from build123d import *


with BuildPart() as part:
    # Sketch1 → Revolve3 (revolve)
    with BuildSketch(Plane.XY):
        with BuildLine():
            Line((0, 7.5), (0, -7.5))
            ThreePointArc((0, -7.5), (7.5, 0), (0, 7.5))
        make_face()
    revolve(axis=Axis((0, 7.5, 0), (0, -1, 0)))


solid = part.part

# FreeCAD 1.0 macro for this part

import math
import FreeCAD as App
import Part
import Sketcher
Q = App.Units.Quantity

doc = App.newDocument("Part")
body = doc.addObject("PartDesign::Body", "Body")

# Sketch on XY plane
sketch1 = body.newObject("Sketcher::SketchObject", "Sketch")
sketch1.AttachmentSupport = (doc.getObject("XY_Plane"), [""])
sketch1.MapMode = "FlatFace"
sketch1.addGeometry([
    Part.LineSegment(App.Vector(0, 8, 0), App.Vector(0, -8, 0)),
    Part.ArcOfCircle(Part.Circle(App.Vector(0, 0, 0), App.Vector(0, 0, 1), 8), math.radians(-90), math.radians(90)),
], False)
sketch1.addConstraint([
    Sketcher.Constraint("Coincident", 0, 1, 1, 2),
    Sketcher.Constraint("Coincident", 1, 1, 0, 2),
    Sketcher.Constraint("Vertical", 0),
    Sketcher.Constraint("Coincident", 1, 3, -1, 1),
    Sketcher.Constraint("PointOnObject", 0, 1, -2),
    Sketcher.Constraint("Radius", 1, Q("7.5 mm")),
])
revolution = body.newObject("PartDesign::Revolution", "Revolution")
revolution.Profile = sketch1
revolution.ReferenceAxis = (sketch1, ["V_Axis"])
revolution.Angle = 360

doc.recompute()
